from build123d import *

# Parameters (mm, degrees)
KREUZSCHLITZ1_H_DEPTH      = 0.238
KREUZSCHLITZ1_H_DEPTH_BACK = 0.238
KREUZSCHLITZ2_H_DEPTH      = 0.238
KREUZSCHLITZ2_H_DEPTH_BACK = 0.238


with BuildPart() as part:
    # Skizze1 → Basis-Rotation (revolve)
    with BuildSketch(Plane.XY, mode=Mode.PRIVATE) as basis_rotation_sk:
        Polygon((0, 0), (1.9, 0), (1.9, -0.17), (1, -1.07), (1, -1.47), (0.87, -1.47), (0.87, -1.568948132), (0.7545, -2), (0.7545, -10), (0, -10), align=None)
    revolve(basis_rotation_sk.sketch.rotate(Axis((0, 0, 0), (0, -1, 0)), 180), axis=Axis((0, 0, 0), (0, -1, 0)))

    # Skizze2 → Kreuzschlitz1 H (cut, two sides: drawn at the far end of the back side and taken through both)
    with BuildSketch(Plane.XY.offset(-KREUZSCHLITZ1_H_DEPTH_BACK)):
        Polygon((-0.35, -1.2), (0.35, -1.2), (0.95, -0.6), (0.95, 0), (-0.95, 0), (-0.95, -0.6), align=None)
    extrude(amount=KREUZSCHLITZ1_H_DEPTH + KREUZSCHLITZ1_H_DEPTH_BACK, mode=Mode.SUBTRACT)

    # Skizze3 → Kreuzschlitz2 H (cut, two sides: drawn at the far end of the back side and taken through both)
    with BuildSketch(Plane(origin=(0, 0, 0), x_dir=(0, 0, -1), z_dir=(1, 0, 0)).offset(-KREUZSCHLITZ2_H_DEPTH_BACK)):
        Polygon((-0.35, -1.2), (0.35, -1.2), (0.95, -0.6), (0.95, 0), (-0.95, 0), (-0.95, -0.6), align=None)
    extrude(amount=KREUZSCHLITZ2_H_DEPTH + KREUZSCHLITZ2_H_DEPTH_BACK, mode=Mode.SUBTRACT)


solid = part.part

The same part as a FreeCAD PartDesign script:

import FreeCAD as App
import Part
import Sketcher
Q = App.Units.Quantity

doc = App.newDocument("Part")
body = doc.addObject("PartDesign::Body", "Body")

sketch1 = body.newObject("Sketcher::SketchObject", "Sketch")
sketch1.AttachmentSupport = (doc.getObject("XY_Plane"), [""])
sketch1.MapMode = "FlatFace"
sketch1.addGeometry(Part.LineSegment(App.Vector(1.9, 0, 0), App.Vector(0, 0, 0)), False)
sketch1.addGeometry(Part.LineSegment(App.Vector(0, 0, 0), App.Vector(0, -10, 0)), False)
sketch1.addGeometry(Part.LineSegment(App.Vector(0, -10, 0), App.Vector(0.75, -10, 0)), False)
sketch1.addGeometry(Part.LineSegment(App.Vector(0.75, -10, 0), App.Vector(0.75, -2, 0)), False)
sketch1.addGeometry(Part.LineSegment(App.Vector(0.75, -2, 0), App.Vector(0.87, -1.57, 0)), False)
sketch1.addGeometry(Part.LineSegment(App.Vector(0.87, -1.57, 0), App.Vector(0.87, -1.47, 0)), False)
sketch1.addGeometry(Part.LineSegment(App.Vector(0.87, -1.47, 0), App.Vector(1, -1.47, 0)), False)
sketch1.addGeometry(Part.LineSegment(App.Vector(1, -1.47, 0), App.Vector(1, -1.07, 0)), False)
sketch1.addGeometry(Part.LineSegment(App.Vector(1, -1.07, 0), App.Vector(1.9, -0.17, 0)), False)
sketch1.addGeometry(Part.LineSegment(App.Vector(1.9, -0.17, 0), App.Vector(1.9, 0, 0)), False)
sketch1.addConstraint(Sketcher.Constraint("Coincident", 0, 2, 1, 1))
sketch1.addConstraint(Sketcher.Constraint("Coincident", 1, 2, 2, 1))
sketch1.addConstraint(Sketcher.Constraint("Coincident", 2, 2, 3, 1))
sketch1.addConstraint(Sketcher.Constraint("Coincident", 3, 2, 4, 1))
sketch1.addConstraint(Sketcher.Constraint("Coincident", 4, 2, 5, 1))
sketch1.addConstraint(Sketcher.Constraint("Coincident", 5, 2, 6, 1))
sketch1.addConstraint(Sketcher.Constraint("Coincident", 6, 2, 7, 1))
sketch1.addConstraint(Sketcher.Constraint("Coincident", 7, 2, 8, 1))
sketch1.addConstraint(Sketcher.Constraint("Coincident", 8, 2, 9, 1))
sketch1.addConstraint(Sketcher.Constraint("Coincident", 9, 2, 0, 1))
sketch1.addConstraint(Sketcher.Constraint("Horizontal", 0))
sketch1.addConstraint(Sketcher.Constraint("Vertical", 1))
sketch1.addConstraint(Sketcher.Constraint("Horizontal", 2))
sketch1.addConstraint(Sketcher.Constraint("Vertical", 3))
sketch1.addConstraint(Sketcher.Constraint("Vertical", 5))
sketch1.addConstraint(Sketcher.Constraint("Horizontal", 6))
sketch1.addConstraint(Sketcher.Constraint("Vertical", 7))
sketch1.addConstraint(Sketcher.Constraint("Vertical", 9))
sketch1.addConstraint(Sketcher.Constraint("Coincident", 0, 2, -1, 1))
sketch1.addConstraint(Sketcher.Constraint("DistanceY", 1, 2, 1, 1, Q("10 mm")))
sketch1.addConstraint(Sketcher.Constraint("DistanceY", 3, 1, 3, 2, Q("8 mm")))
sketch1.addConstraint(Sketcher.Constraint("Angle", 4, Q("75 deg")))
sketch1.addConstraint(Sketcher.Constraint("Angle", 8, Q("45 deg")))
sketch1.addConstraint(Sketcher.Constraint("DistanceX", 0, 2, 0, 1, Q("1.9 mm")))
sketch1.addConstraint(Sketcher.Constraint("DistanceY", 7, 1, 7, 2, Q("0.4 mm")))
sketch1.addConstraint(Sketcher.Constraint("DistanceX", -1, 1, 6, 2, Q("1 mm")))
sketch1.addConstraint(Sketcher.Constraint("DistanceX", 6, 1, 6, 2, Q("0.13 mm")))
sketch1.addConstraint(Sketcher.Constraint("DistanceY", 9, 1, 9, 2, Q("0.17 mm")))
sketch1.addConstraint(Sketcher.Constraint("DistanceX", 2, 1, 2, 2, Q("0.7545 mm")))
revolution = body.newObject("PartDesign::Revolution", "Revolution")
revolution.Profile = sketch1
revolution.ReferenceAxis = (sketch1, ["V_Axis"])
revolution.Angle = 360

sketch2 = body.newObject("Sketcher::SketchObject", "Sketch001")
sketch2.AttachmentSupport = (doc.getObject("XY_Plane"), [""])
sketch2.MapMode = "FlatFace"
sketch2.addGeometry(Part.LineSegment(App.Vector(-0.3, -1.2, 0), App.Vector(0.3, -1.2, 0)), False)
sketch2.addGeometry(Part.LineSegment(App.Vector(0.3, -1.2, 0), App.Vector(0.9, -0.6, 0)), False)
sketch2.addGeometry(Part.LineSegment(App.Vector(0.9, -0.6, 0), App.Vector(0.9, 0, 0)), False)
sketch2.addGeometry(Part.LineSegment(App.Vector(0.9, 0, 0), App.Vector(-0.9, 0, 0)), False)
sketch2.addGeometry(Part.LineSegment(App.Vector(-0.9, 0, 0), App.Vector(-0.9, -0.6, 0)), False)
sketch2.addGeometry(Part.LineSegment(App.Vector(-0.9, -0.6, 0), App.Vector(-0.3, -1.2, 0)), False)
sketch2.addConstraint(Sketcher.Constraint("Coincident", 0, 2, 1, 1))
sketch2.addConstraint(Sketcher.Constraint("Coincident", 1, 2, 2, 1))
sketch2.addConstraint(Sketcher.Constraint("Coincident", 2, 2, 3, 1))
sketch2.addConstraint(Sketcher.Constraint("Coincident", 3, 2, 4, 1))
sketch2.addConstraint(Sketcher.Constraint("Coincident", 4, 2, 5, 1))
sketch2.addConstraint(Sketcher.Constraint("Coincident", 5, 2, 0, 1))
sketch2.addConstraint(Sketcher.Constraint("Horizontal", 0))
sketch2.addConstraint(Sketcher.Constraint("Vertical", 2))
sketch2.addConstraint(Sketcher.Constraint("Horizontal", 3))
sketch2.addConstraint(Sketcher.Constraint("Vertical", 4))
sketch2.addConstraint(Sketcher.Constraint("Symmetric", 2, 2, 3, 2, -1, 1))
sketch2.addConstraint(Sketcher.Constraint("Perpendicular", 1, 5))
sketch2.addConstraint(Sketcher.Constraint("Horizontal", 1, 2, 4, 2))
sketch2.addConstraint(Sketcher.Constraint("Equal", 1, 5))
sketch2.addConstraint(Sketcher.Constraint("DistanceX", 0, 1, 0, 2, Q("0.7 mm")))
sketch2.addConstraint(Sketcher.Constraint("DistanceX", 3, 2, 3, 1, Q("1.9 mm")))
sketch2.addConstraint(Sketcher.Constraint("DistanceY", 2, 1, 2, 2, Q("0.6 mm")))
pocket1 = body.newObject("PartDesign::Pocket", "Pocket")
pocket1.Profile = sketch2
pocket1.Type = "TwoLengths"
pocket1.Length = 0.238
pocket1.Length2 = 0.238
pocket1.Reversed = True

sketch3 = body.newObject("Sketcher::SketchObject", "Sketch002")
sketch3.AttachmentSupport = (doc.getObject("YZ_Plane"), [""])
sketch3.MapMode = "FlatFace"
sketch3.addGeometry(Part.LineSegment(App.Vector(-1.2, 0.3, 0), App.Vector(-1.2, -0.3, 0)), False)
sketch3.addGeometry(Part.LineSegment(App.Vector(-1.2, -0.3, 0), App.Vector(-0.6, -0.9, 0)), False)
sketch3.addGeometry(Part.LineSegment(App.Vector(-0.6, -0.9, 0), App.Vector(0, -0.9, 0)), False)
sketch3.addGeometry(Part.LineSegment(App.Vector(0, -0.9, 0), App.Vector(0, 0.9, 0)), False)
sketch3.addGeometry(Part.LineSegment(App.Vector(0, 0.9, 0), App.Vector(-0.6, 0.9, 0)), False)
sketch3.addGeometry(Part.LineSegment(App.Vector(-0.6, 0.9, 0), App.Vector(-1.2, 0.3, 0)), False)
sketch3.addConstraint(Sketcher.Constraint("Coincident", 0, 2, 1, 1))
sketch3.addConstraint(Sketcher.Constraint("Coincident", 1, 2, 2, 1))
sketch3.addConstraint(Sketcher.Constraint("Coincident", 2, 2, 3, 1))
sketch3.addConstraint(Sketcher.Constraint("Coincident", 3, 2, 4, 1))
sketch3.addConstraint(Sketcher.Constraint("Coincident", 4, 2, 5, 1))
sketch3.addConstraint(Sketcher.Constraint("Coincident", 5, 2, 0, 1))
sketch3.addConstraint(Sketcher.Constraint("Vertical", 0))
sketch3.addConstraint(Sketcher.Constraint("Horizontal", 2))
sketch3.addConstraint(Sketcher.Constraint("Vertical", 3))
sketch3.addConstraint(Sketcher.Constraint("Horizontal", 4))
sketch3.addConstraint(Sketcher.Constraint("Symmetric", 2, 2, 3, 2, -1, 1))
sketch3.addConstraint(Sketcher.Constraint("Perpendicular", 1, 5))
sketch3.addConstraint(Sketcher.Constraint("Vertical", 1, 2, 4, 2))
sketch3.addConstraint(Sketcher.Constraint("Equal", 1, 5))
sketch3.addConstraint(Sketcher.Constraint("DistanceX", 2, 1, 2, 2, Q("0.6 mm")))
sketch3.addConstraint(Sketcher.Constraint("DistanceY", 0, 2, 0, 1, Q("0.7 mm")))
sketch3.addConstraint(Sketcher.Constraint("DistanceY", 3, 1, 3, 2, Q("1.9 mm")))
pocket2 = body.newObject("PartDesign::Pocket", "Pocket001")
pocket2.Profile = sketch3
pocket2.Type = "TwoLengths"
pocket2.Length = 0.238
pocket2.Length2 = 0.238
pocket2.Reversed = True

doc.recompute()
